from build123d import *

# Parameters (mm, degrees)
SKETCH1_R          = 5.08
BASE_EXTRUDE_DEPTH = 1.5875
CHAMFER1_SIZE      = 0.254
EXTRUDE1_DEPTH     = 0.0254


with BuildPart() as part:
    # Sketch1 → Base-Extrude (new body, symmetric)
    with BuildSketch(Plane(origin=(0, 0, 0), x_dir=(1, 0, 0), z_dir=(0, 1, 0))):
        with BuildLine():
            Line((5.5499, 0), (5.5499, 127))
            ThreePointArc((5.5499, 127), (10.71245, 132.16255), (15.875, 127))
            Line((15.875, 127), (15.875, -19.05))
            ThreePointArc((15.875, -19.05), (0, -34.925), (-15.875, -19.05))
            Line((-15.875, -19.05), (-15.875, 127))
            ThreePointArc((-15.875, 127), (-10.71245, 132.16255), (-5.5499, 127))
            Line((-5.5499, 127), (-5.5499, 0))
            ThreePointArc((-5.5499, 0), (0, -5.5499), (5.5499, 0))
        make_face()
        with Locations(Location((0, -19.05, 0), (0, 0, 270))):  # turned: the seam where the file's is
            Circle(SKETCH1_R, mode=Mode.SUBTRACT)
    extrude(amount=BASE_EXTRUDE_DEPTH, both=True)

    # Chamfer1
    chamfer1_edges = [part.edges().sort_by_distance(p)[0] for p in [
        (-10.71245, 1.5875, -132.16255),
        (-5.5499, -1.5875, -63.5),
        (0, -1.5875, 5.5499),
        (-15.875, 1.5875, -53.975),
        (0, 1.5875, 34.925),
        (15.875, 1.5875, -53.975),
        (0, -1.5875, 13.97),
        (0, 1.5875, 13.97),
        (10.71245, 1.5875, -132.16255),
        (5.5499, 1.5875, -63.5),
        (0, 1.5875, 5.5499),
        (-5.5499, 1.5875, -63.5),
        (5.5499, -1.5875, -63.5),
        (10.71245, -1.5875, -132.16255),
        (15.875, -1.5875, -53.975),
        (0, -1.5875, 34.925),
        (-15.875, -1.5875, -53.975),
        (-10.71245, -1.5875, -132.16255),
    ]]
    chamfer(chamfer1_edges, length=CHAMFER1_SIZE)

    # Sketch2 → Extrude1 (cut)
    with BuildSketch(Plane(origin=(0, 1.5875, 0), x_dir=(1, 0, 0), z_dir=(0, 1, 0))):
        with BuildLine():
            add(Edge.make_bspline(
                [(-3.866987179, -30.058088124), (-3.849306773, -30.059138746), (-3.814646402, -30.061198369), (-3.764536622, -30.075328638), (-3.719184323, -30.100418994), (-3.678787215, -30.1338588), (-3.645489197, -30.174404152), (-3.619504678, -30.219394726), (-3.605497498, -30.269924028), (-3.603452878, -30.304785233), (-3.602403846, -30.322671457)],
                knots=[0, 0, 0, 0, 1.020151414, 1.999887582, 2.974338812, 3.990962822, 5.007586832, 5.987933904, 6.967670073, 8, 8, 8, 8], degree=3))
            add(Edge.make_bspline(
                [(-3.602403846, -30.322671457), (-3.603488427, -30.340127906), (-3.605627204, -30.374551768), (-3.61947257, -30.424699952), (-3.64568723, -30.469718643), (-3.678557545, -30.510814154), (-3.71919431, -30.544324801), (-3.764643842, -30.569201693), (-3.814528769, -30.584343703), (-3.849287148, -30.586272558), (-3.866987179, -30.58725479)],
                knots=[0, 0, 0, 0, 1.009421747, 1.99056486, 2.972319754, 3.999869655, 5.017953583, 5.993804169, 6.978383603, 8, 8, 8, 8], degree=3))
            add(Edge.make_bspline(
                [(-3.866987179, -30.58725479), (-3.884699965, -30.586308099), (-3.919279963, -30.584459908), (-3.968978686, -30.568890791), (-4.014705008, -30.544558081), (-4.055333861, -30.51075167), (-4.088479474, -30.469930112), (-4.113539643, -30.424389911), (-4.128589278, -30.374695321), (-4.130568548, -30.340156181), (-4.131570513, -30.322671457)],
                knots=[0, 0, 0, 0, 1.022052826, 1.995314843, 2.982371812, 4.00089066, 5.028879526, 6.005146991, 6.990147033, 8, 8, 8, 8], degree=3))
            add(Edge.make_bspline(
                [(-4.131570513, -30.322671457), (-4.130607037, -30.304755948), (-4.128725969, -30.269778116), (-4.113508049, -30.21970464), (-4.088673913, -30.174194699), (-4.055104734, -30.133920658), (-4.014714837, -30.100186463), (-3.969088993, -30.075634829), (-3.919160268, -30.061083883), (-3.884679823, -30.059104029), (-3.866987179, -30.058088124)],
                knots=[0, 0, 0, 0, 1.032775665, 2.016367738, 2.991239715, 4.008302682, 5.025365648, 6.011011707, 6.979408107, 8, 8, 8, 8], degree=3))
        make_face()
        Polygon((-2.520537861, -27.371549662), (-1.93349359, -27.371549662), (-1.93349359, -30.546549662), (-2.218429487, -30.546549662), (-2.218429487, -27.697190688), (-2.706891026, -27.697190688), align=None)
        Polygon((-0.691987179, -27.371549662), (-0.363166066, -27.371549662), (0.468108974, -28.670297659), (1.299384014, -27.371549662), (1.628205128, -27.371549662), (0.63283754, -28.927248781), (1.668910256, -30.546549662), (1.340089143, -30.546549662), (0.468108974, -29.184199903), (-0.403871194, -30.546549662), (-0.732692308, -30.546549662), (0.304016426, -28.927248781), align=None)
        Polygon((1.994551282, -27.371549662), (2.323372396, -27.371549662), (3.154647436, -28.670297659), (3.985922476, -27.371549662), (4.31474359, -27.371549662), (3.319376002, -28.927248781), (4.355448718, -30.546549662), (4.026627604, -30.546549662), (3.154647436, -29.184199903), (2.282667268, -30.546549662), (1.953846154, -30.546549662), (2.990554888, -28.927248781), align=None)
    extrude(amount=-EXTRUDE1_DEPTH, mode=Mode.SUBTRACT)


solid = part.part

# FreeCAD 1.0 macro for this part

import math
import FreeCAD as App
import Part
import Sketcher
from FreeCAD import Vector
Q = App.Units.Quantity


def edges_at(feature, points):
    """Names of the edges that pass closest to the given points."""
    edges = feature.Shape.Edges
    near = lambda p: min(range(len(edges)), key=lambda i: edges[i].distToShape(Part.Vertex(*p))[0])
    return sorted({f"Edge{near(p) + 1}" for p in points})


def add_polygon(sketch, points):
    """Adds a closed chain of lines whose ends are joined by coincident constraints."""
    first, n = sketch.GeometryCount, len(points)
    for a, b in zip(points, points[1:] + points[:1]):
        sketch.addGeometry(Part.LineSegment(App.Vector(*a, 0), App.Vector(*b, 0)), False)
    for i in range(n):
        sketch.addConstraint(Sketcher.Constraint("Coincident", first + i, 2, first + (i + 1) % n, 1))

doc = App.newDocument("Part")
body = doc.addObject("PartDesign::Body", "Body")

sketch1 = body.newObject("Sketcher::SketchObject", "Sketch")
sketch1.AttachmentSupport = (doc.getObject("XZ_Plane"), [""])
sketch1.MapMode = "FlatFace"
sketch1.addGeometry([
    Part.LineSegment(Vector(6, -127, 0), Vector(6, 0, 0)),
    Part.ArcOfCircle(Part.Circle(Vector(0, 0, 0), Vector(0, 0, 1), 6), math.radians(0), math.radians(180)),
    Part.LineSegment(Vector(-6, 0, 0), Vector(-6, -127, 0)),
    Part.ArcOfCircle(Part.Circle(Vector(-11, -127, 0), Vector(0, 0, 1), 5), math.radians(180), math.radians(360)),
    Part.LineSegment(Vector(-16, -127, 0), Vector(-16, 19, 0)),
    Part.ArcOfCircle(Part.Circle(Vector(0, 19, 0), Vector(0, 0, 1), 16), math.radians(0), math.radians(180)),
    Part.LineSegment(Vector(16, 19, 0), Vector(16, -127, 0)),
    Part.ArcOfCircle(Part.Circle(Vector(11, -127, 0), Vector(0, 0, 1), 5), math.radians(180), math.radians(360)),
    Part.Circle(Vector(0, 19, 0), Vector(0, 0, 1), 5),
], False)
sketch1.addConstraint([
    Sketcher.Constraint("Tangent", 0, 2, 1, 1),
    Sketcher.Constraint("Tangent", 1, 2, 2, 1),
    Sketcher.Constraint("Tangent", 2, 2, 3, 2),
    Sketcher.Constraint("Tangent", 3, 1, 4, 1),
    Sketcher.Constraint("Tangent", 4, 2, 5, 2),
    Sketcher.Constraint("Tangent", 5, 1, 6, 1),
    Sketcher.Constraint("Tangent", 6, 2, 7, 2),
    Sketcher.Constraint("Tangent", 7, 1, 0, 1),
    Sketcher.Constraint("Vertical", 0),
    Sketcher.Constraint("Vertical", 2),
    Sketcher.Constraint("Vertical", 4),
    Sketcher.Constraint("Vertical", 6),
    Sketcher.Constraint("Coincident", 1, 3, -1, 1),
    Sketcher.Constraint("Coincident", 8, 3, 5, 3),
    Sketcher.Constraint("Equal", 3, 7),
    Sketcher.Constraint("Horizontal", 3, 3, 7, 3),
    Sketcher.Constraint("Diameter", 8, Q("0.4 in")),
    Sketcher.Constraint("DistanceY", 0, 1, 0, 2, Q("5 in")),
    Sketcher.Constraint("Radius", 5, Q("0.625 in")),
    Sketcher.Constraint("DistanceY", 4, 1, 4, 2, Q("5.75 in")),
    Sketcher.Constraint("Radius", 1, Q("0.2185 in")),
])
pad1 = body.newObject("PartDesign::Pad", "Pad")
pad1.Profile = sketch1
pad1.Length = Q("0.125 in")
pad1.Midplane = True
doc.recompute()

chamfer = body.newObject("PartDesign::Chamfer", "Chamfer")
chamfer.Base = (pad1, edges_at(pad1, [
    (-10.712, 1.587, -132.163),
    (-5.55, -1.587, -63.5),
    (0, -1.587, 5.55),
    (-15.875, 1.587, -53.975),
    (0, 1.587, 34.925),
    (15.875, 1.587, -53.975),
    (0, -1.587, 13.97),
    (0, 1.587, 13.97),
    (10.712, 1.587, -132.163),
    (5.55, 1.587, -63.5),
    (0, 1.587, 5.55),
    (-5.55, 1.587, -63.5),
    (5.55, -1.587, -63.5),
    (10.712, -1.587, -132.163),
    (15.875, -1.587, -53.975),
    (0, -1.587, 34.925),
    (-15.875, -1.587, -53.975),
    (-10.712, -1.587, -132.163),
]))
chamfer.Size = Q("0.01 in")

sketch2 = body.newObject("Sketcher::SketchObject", "Sketch001")
sketch2.AttachmentSupport = (doc.getObject("XZ_Plane"), [""])
sketch2.MapMode = "FlatFace"
sketch2.AttachmentOffset = App.Placement(Vector(0, 0, -0.0625 * 25.4), App.Rotation())
sketch2.addGeometry(Part.BSplineCurve([Vector(-3.866987, 30.058088, 0), Vector(-3.849307, 30.059139, 0), Vector(-3.814646, 30.061198, 0), Vector(-3.764537, 30.075329, 0), Vector(-3.719184, 30.100419, 0), Vector(-3.678787, 30.133859, 0), Vector(-3.645489, 30.174404, 0), Vector(-3.619505, 30.219395, 0), Vector(-3.605497, 30.269924, 0), Vector(-3.603453, 30.304785, 0), Vector(-3.602404, 30.322671, 0)], [4, 1, 1, 1, 1, 1, 1, 1, 4], [0, 1.020151414, 1.999887582, 2.974338812, 3.990962822, 5.007586832, 5.987933904, 6.967670073, 8], False, 3, [1, 1, 1, 1, 1, 1, 1, 1, 1, 1, 1], False), False)
sketch2.addGeometry(Part.BSplineCurve([Vector(-4.131571, 30.322671, 0), Vector(-4.130607, 30.304756, 0), Vector(-4.128726, 30.269778, 0), Vector(-4.113508, 30.219705, 0), Vector(-4.088674, 30.174195, 0), Vector(-4.055105, 30.133921, 0), Vector(-4.014715, 30.100186, 0), Vector(-3.969089, 30.075635, 0), Vector(-3.91916, 30.061084, 0), Vector(-3.88468, 30.059104, 0), Vector(-3.866987, 30.058088, 0)], [4, 1, 1, 1, 1, 1, 1, 1, 4], [0, 1.032775665, 2.016367738, 2.991239715, 4.008302682, 5.025365648, 6.011011707, 6.979408107, 8], False, 3, [1, 1, 1, 1, 1, 1, 1, 1, 1, 1, 1], False), False)
sketch2.addGeometry(Part.BSplineCurve([Vector(-3.866987, 30.587255, 0), Vector(-3.8847, 30.586308, 0), Vector(-3.91928, 30.58446, 0), Vector(-3.968979, 30.568891, 0), Vector(-4.014705, 30.544558, 0), Vector(-4.055334, 30.510752, 0), Vector(-4.088479, 30.46993, 0), Vector(-4.11354, 30.42439, 0), Vector(-4.128589, 30.374695, 0), Vector(-4.130569, 30.340156, 0), Vector(-4.131571, 30.322671, 0)], [4, 1, 1, 1, 1, 1, 1, 1, 4], [0, 1.022052826, 1.995314843, 2.982371812, 4.00089066, 5.028879526, 6.005146991, 6.990147033, 8], False, 3, [1, 1, 1, 1, 1, 1, 1, 1, 1, 1, 1], False), False)
sketch2.addGeometry(Part.BSplineCurve([Vector(-3.602404, 30.322671, 0), Vector(-3.603488, 30.340128, 0), Vector(-3.605627, 30.374552, 0), Vector(-3.619473, 30.4247, 0), Vector(-3.645687, 30.469719, 0), Vector(-3.678558, 30.510814, 0), Vector(-3.719194, 30.544325, 0), Vector(-3.764644, 30.569202, 0), Vector(-3.814529, 30.584344, 0), Vector(-3.849287, 30.586273, 0), Vector(-3.866987, 30.587255, 0)], [4, 1, 1, 1, 1, 1, 1, 1, 4], [0, 1.009421747, 1.99056486, 2.972319754, 3.999869655, 5.017953583, 5.993804169, 6.978383603, 8], False, 3, [1, 1, 1, 1, 1, 1, 1, 1, 1, 1, 1], False), False)
add_polygon(sketch2, [(-1.933494, 27.37155), (-2.520538, 27.37155), (-2.706891, 27.697191), (-2.218429, 27.697191), (-2.218429, 30.54655), (-1.933494, 30.54655)])
add_polygon(sketch2, [(-0.363166, 27.37155), (-0.691987, 27.37155), (0.304016, 28.927249), (-0.732692, 30.54655), (-0.403871, 30.54655), (0.468109, 29.1842), (1.340089, 30.54655), (1.66891, 30.54655), (0.632838, 28.927249), (1.628205, 27.37155), (1.299384, 27.37155), (0.468109, 28.670298)])
add_polygon(sketch2, [(2.323372, 27.37155), (1.994551, 27.37155), (2.990555, 28.927249), (1.953846, 30.54655), (2.282667, 30.54655), (3.154647, 29.1842), (4.026628, 30.54655), (4.355449, 30.54655), (3.319376, 28.927249), (4.314744, 27.37155), (3.985922, 27.37155), (3.154647, 28.670298)])
sketch2.addConstraint([
    Sketcher.Constraint("Block", 0),
    Sketcher.Constraint("Block", 1),
    Sketcher.Constraint("Block", 2),
    Sketcher.Constraint("Block", 3),
    Sketcher.Constraint("Horizontal", 4),
    Sketcher.Constraint("Horizontal", 6),
    Sketcher.Constraint("Vertical", 7),
    Sketcher.Constraint("Horizontal", 8),
    Sketcher.Constraint("Vertical", 9),
    Sketcher.Constraint("Horizontal", 10),
    Sketcher.Constraint("Horizontal", 13),
    Sketcher.Constraint("Horizontal", 16),
    Sketcher.Constraint("Horizontal", 19),
    Sketcher.Constraint("Horizontal", 22),
    Sketcher.Constraint("Horizontal", 25),
    Sketcher.Constraint("Horizontal", 28),
    Sketcher.Constraint("Horizontal", 31),
    Sketcher.Constraint("Parallel", 14, 20),
    Sketcher.Constraint("Parallel", 15, 21),
    Sketcher.Constraint("Parallel", 11, 23),
    Sketcher.Constraint("Parallel", 12, 24),
    Sketcher.Constraint("Parallel", 20, 26),
    Sketcher.Constraint("Parallel", 21, 27),
    Sketcher.Constraint("Parallel", 17, 29),
    Sketcher.Constraint("Parallel", 18, 30),
    Sketcher.Constraint("Parallel", 26, 32),
    Sketcher.Constraint("Parallel", 27, 33),
    Sketcher.Constraint("Horizontal", 9, 2, 10, 2),
    Sketcher.Constraint("Horizontal", 8, 2, 12, 2),
    Sketcher.Constraint("Horizontal", 13, 2, 15, 2),
    Sketcher.Constraint("Horizontal", 11, 2, 17, 2),
    Sketcher.Constraint("Horizontal", 10, 2, 18, 2),
    Sketcher.Constraint("Horizontal", 21, 2, 22, 2),
    Sketcher.Constraint("Horizontal", 17, 2, 23, 2),
    Sketcher.Constraint("Horizontal", 16, 2, 24, 2),
    Sketcher.Constraint("Horizontal", 14, 2, 26, 2),
    Sketcher.Constraint("Horizontal", 25, 2, 27, 2),
    Sketcher.Constraint("Horizontal", 23, 2, 29, 2),
    Sketcher.Constraint("Horizontal", 22, 2, 30, 2),
    Sketcher.Constraint("Horizontal", 20, 2, 32, 2),
    Sketcher.Constraint("Vertical", 14, 2, 20, 2),
    Sketcher.Constraint("Vertical", 26, 2, 32, 2),
    Sketcher.Constraint("Equal", 10, 13),
    Sketcher.Constraint("Equal", 13, 16),
    Sketcher.Constraint("Equal", 16, 19),
    Sketcher.Constraint("Equal", 19, 22),
    Sketcher.Constraint("Equal", 25, 28),
    Sketcher.Constraint("Equal", 14, 15),
    Sketcher.Constraint("DistanceY", 9, 2, 9, 1, Q("0.125 in")),
    Sketcher.Constraint("Distance", 20, Q("1.542 mm")),
    Sketcher.Constraint("DistanceX", 6, 1, 6, 2, Q("0.488462 mm")),
    Sketcher.Constraint("DistanceX", 10, 2, 10, 1, Q("0.328821 mm")),
    Sketcher.Constraint("DistanceY", 7, 1, 7, 2, Q("2.849359 mm")),
    Sketcher.Constraint("DistanceY", -1, 1, 14, 2, Q("29.1842 mm")),
    Sketcher.Constraint("DistanceY", 10, 2, 11, 2, Q("1.555699 mm")),
    Sketcher.Constraint("DistanceX", 8, 2, 12, 2, Q("1.200801 mm")),
    Sketcher.Constraint("DistanceX", 12, 2, 14, 2, Q("1.200801 mm")),
    Sketcher.Constraint("Distance", 11, Q("1.84722 mm")),
    Sketcher.Constraint("Distance", 17, Q("1.92239 mm")),
    Sketcher.Constraint("DistanceX", 4, 2, 4, 1, Q("0.587044 mm")),
    Sketcher.Constraint("DistanceX", 8, 1, 8, 2, Q("0.284936 mm")),
    Sketcher.Constraint("DistanceY", -1, 1, 4, 2, Q("27.37155 mm")),
    Sketcher.Constraint("DistanceX", 5, 2, -1, 1, Q("2.706891 mm")),
    Sketcher.Constraint("DistanceX", -1, 1, 22, 2, Q("1.994551 mm")),
])
pocket1 = body.newObject("PartDesign::Pocket", "Pocket")
pocket1.Profile = sketch2
pocket1.Length = Q("0.001 in")
pocket1.Reversed = True

doc.recompute()
